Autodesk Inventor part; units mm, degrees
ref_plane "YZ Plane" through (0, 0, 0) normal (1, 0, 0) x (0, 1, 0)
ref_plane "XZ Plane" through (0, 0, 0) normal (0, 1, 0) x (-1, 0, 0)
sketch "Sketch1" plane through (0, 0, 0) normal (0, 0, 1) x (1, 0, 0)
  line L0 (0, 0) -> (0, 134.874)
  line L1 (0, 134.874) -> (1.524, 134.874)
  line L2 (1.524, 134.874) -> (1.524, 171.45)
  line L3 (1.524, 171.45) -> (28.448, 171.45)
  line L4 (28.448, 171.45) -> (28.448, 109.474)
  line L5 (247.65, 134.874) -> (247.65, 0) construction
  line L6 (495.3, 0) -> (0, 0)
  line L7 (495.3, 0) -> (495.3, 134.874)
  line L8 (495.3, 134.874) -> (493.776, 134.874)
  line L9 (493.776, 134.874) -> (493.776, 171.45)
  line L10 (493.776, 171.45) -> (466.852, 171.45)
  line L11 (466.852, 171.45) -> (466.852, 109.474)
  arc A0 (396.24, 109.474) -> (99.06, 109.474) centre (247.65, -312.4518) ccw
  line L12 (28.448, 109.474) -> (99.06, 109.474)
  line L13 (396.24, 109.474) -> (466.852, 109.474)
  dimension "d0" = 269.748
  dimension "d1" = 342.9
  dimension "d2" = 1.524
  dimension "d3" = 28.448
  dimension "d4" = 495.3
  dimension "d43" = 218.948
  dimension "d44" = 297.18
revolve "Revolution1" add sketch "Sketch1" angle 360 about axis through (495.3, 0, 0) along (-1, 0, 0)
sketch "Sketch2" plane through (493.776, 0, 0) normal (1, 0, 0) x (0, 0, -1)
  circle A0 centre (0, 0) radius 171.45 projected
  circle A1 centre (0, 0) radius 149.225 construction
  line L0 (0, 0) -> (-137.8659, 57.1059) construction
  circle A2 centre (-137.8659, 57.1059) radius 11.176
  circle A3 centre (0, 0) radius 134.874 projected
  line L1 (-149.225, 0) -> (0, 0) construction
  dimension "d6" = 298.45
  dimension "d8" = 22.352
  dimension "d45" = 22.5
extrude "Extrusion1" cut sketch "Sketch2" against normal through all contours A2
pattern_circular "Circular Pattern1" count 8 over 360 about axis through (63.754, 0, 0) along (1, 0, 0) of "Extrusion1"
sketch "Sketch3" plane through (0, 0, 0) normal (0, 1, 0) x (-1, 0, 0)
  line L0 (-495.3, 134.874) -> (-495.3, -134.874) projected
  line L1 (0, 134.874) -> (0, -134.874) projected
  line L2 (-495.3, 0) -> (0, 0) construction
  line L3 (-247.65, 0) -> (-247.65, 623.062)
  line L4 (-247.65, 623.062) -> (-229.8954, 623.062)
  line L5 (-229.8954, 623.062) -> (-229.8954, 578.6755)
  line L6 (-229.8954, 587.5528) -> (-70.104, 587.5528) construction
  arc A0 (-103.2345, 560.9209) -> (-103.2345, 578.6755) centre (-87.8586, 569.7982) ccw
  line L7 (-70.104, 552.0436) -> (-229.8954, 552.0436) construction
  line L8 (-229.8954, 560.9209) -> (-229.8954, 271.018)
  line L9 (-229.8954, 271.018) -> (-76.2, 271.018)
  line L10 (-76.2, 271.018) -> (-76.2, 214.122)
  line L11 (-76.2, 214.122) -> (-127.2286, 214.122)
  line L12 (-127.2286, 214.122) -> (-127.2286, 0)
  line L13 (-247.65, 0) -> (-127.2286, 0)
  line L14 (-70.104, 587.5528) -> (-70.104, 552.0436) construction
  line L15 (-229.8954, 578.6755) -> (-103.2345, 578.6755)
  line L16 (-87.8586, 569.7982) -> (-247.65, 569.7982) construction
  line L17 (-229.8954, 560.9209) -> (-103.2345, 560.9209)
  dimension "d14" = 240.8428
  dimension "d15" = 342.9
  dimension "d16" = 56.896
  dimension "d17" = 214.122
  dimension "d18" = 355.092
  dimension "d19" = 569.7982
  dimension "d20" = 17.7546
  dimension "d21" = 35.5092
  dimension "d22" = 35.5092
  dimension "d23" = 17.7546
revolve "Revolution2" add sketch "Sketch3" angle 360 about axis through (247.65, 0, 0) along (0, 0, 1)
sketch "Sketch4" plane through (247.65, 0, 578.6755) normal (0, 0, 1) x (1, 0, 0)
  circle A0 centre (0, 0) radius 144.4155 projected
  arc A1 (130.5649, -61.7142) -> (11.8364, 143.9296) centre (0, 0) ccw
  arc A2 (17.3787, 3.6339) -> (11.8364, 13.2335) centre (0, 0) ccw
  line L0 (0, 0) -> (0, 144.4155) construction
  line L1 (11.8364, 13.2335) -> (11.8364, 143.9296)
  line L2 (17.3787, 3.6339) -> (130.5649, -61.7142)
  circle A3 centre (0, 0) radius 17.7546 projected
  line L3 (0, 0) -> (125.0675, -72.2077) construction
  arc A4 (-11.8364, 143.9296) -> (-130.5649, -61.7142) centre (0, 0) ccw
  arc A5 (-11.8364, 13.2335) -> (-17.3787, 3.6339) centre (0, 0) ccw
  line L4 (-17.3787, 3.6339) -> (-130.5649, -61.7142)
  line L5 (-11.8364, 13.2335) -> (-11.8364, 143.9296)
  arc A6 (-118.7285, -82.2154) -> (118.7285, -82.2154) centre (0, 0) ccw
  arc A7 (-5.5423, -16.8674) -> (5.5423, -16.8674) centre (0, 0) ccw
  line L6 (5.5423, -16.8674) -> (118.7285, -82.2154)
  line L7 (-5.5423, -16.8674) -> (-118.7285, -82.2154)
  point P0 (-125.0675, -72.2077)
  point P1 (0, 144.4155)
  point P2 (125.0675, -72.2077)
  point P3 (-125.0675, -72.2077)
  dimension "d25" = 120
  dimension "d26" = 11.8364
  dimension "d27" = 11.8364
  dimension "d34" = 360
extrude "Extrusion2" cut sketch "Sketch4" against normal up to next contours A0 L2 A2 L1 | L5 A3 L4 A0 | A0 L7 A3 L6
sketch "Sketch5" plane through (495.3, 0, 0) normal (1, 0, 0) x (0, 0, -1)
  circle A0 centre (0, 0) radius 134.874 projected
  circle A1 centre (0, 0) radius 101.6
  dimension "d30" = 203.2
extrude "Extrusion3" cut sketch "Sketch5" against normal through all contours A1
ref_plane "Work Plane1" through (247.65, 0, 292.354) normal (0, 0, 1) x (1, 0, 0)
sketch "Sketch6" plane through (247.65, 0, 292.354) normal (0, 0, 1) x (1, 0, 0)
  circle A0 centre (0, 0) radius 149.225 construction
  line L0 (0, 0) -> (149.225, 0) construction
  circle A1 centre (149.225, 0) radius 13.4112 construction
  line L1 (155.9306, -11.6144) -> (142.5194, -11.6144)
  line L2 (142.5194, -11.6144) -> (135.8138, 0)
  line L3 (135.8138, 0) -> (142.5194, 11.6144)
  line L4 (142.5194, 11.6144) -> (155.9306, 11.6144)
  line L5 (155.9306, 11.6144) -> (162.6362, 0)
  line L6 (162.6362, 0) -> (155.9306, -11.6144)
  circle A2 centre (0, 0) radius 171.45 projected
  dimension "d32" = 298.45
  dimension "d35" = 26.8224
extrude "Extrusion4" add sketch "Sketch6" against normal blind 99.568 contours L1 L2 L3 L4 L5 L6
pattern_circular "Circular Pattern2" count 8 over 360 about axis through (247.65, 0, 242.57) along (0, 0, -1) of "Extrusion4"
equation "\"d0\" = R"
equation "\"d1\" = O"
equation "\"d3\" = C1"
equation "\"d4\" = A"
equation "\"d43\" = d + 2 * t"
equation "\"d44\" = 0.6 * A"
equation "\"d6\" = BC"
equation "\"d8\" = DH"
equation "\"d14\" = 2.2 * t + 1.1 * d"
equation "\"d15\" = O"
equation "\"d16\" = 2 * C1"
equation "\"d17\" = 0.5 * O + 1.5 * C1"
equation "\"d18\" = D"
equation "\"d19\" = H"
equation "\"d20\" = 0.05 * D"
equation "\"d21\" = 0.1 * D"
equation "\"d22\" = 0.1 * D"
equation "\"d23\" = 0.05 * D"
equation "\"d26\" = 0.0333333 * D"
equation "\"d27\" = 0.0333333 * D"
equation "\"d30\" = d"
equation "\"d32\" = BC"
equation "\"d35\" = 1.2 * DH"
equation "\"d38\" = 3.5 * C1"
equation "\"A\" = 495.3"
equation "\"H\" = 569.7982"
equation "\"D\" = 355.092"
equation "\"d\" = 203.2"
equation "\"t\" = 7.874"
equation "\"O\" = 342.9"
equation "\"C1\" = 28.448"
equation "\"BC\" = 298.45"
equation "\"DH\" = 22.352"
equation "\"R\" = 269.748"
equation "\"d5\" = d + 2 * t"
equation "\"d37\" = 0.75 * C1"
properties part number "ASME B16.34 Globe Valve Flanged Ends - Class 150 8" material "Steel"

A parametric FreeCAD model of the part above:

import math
import FreeCAD as App
import Part
import Sketcher

V = App.Vector
Q = App.Units.Quantity


def add_polygon(sketch, points):
    """Adds a closed chain of lines whose ends are joined by coincident constraints."""
    first, n = sketch.GeometryCount, len(points)
    for a, b in zip(points, points[1:] + points[:1]):
        sketch.addGeometry(Part.LineSegment(App.Vector(*a, 0), App.Vector(*b, 0)), False)
    for i in range(n):
        sketch.addConstraint(Sketcher.Constraint("Coincident", first + i, 2, first + (i + 1) % n, 1))

doc = App.newDocument("Part")
params = doc.addObject("Spreadsheet::Sheet", "Params")
for row, (alias, value) in enumerate([
    ("sketch1_width", "19.5 in"),
    ("sketch1_width2", "0.06 in"),
    ("sketch1_height", "5.31 in"),
    ("sketch1_height2", "1.44 in"),
    ("revolution_angle", "360 deg"),
    ("sketch2_diameter", "0.88 in"),
    ("sketch3_radius", "0.699 in"),
    ("sketch3_height", "8.43 in"),
    ("sketch3_height2", "2.24 in"),
    ("sketch3_width", "0.699 in"),
    ("sketch3_height3", "24.53 in"),
    ("revolution2_angle", "360 deg"),
    ("sketch4_radius", "0.699 in"),
    ("sketch4_width", "0.466 in"),
    ("pocket2_length", "0.699 in"),
    ("sketch5_diameter", "8 in"),
    ("sketch6_width", "0.528 in"),
    ("pad1_length", "3.92 in"),
], start=1):
    params.set(f"A{row}", alias)
    params.set(f"B{row}", "=" + value)
    params.setAlias(f"B{row}", alias)

body = doc.addObject("PartDesign::Body", "Body")

sketch1 = body.newObject("Sketcher::SketchObject", "Sketch")
sketch1.AttachmentSupport = (doc.getObject("XY_Plane"), [""])
sketch1.MapMode = "FlatFace"
sketch1.addGeometry(Part.LineSegment(V(0, 134.874, 0), V(0, 0, 0)), False)
sketch1.addGeometry(Part.LineSegment(V(0, 0, 0), V(495.3, 0, 0)), False)
sketch1.addGeometry(Part.LineSegment(V(495.3, 0, 0), V(495.3, 134.874, 0)), False)
sketch1.addGeometry(Part.LineSegment(V(495.3, 134.874, 0), V(493.776, 134.874, 0)), False)
sketch1.addGeometry(Part.LineSegment(V(493.776, 134.874, 0), V(493.776, 171.45, 0)), False)
sketch1.addGeometry(Part.LineSegment(V(493.776, 171.45, 0), V(466.852, 171.45, 0)), False)
sketch1.addGeometry(Part.LineSegment(V(466.852, 171.45, 0), V(466.852, 109.474, 0)), False)
sketch1.addGeometry(Part.LineSegment(V(466.852, 109.474, 0), V(396.24, 109.474, 0)), False)
sketch1.addGeometry(Part.ArcOfCircle(Part.Circle(V(247.65, -312.4518, 0), V(0, 0, 1), 447.325797), math.radians(70.599218), math.radians(109.400782)), False)
sketch1.addGeometry(Part.LineSegment(V(99.06, 109.474, 0), V(28.448, 109.474, 0)), False)
sketch1.addGeometry(Part.LineSegment(V(28.448, 109.474, 0), V(28.448, 171.45, 0)), False)
sketch1.addGeometry(Part.LineSegment(V(28.448, 171.45, 0), V(1.524, 171.45, 0)), False)
sketch1.addGeometry(Part.LineSegment(V(1.524, 171.45, 0), V(1.524, 134.874, 0)), False)
sketch1.addGeometry(Part.LineSegment(V(1.524, 134.874, 0), V(0, 134.874, 0)), False)
sketch1.addConstraint(Sketcher.Constraint("Coincident", 0, 2, 1, 1))
sketch1.addConstraint(Sketcher.Constraint("Coincident", 1, 2, 2, 1))
sketch1.addConstraint(Sketcher.Constraint("Coincident", 2, 2, 3, 1))
sketch1.addConstraint(Sketcher.Constraint("Coincident", 3, 2, 4, 1))
sketch1.addConstraint(Sketcher.Constraint("Coincident", 4, 2, 5, 1))
sketch1.addConstraint(Sketcher.Constraint("Coincident", 5, 2, 6, 1))
sketch1.addConstraint(Sketcher.Constraint("Coincident", 6, 2, 7, 1))
sketch1.addConstraint(Sketcher.Constraint("Coincident", 7, 2, 8, 1))
sketch1.addConstraint(Sketcher.Constraint("Coincident", 8, 2, 9, 1))
sketch1.addConstraint(Sketcher.Constraint("Coincident", 9, 2, 10, 1))
sketch1.addConstraint(Sketcher.Constraint("Coincident", 10, 2, 11, 1))
sketch1.addConstraint(Sketcher.Constraint("Coincident", 11, 2, 12, 1))
sketch1.addConstraint(Sketcher.Constraint("Coincident", 12, 2, 13, 1))
sketch1.addConstraint(Sketcher.Constraint("Coincident", 13, 2, 0, 1))
sketch1.addConstraint(Sketcher.Constraint("Vertical", 0))
sketch1.addConstraint(Sketcher.Constraint("Horizontal", 1))
sketch1.addConstraint(Sketcher.Constraint("Vertical", 2))
sketch1.addConstraint(Sketcher.Constraint("Horizontal", 3))
sketch1.addConstraint(Sketcher.Constraint("Vertical", 4))
sketch1.addConstraint(Sketcher.Constraint("Horizontal", 5))
sketch1.addConstraint(Sketcher.Constraint("Vertical", 6))
sketch1.addConstraint(Sketcher.Constraint("Horizontal", 7))
sketch1.addConstraint(Sketcher.Constraint("Horizontal", 9))
sketch1.addConstraint(Sketcher.Constraint("Vertical", 10))
sketch1.addConstraint(Sketcher.Constraint("Horizontal", 11))
sketch1.addConstraint(Sketcher.Constraint("Vertical", 12))
sketch1.addConstraint(Sketcher.Constraint("Horizontal", 13))
sketch1.addConstraint(Sketcher.Constraint("Coincident", 0, 2, -1, 1))
sketch1.addConstraint(Sketcher.Constraint("Horizontal", 7, 2, 8, 2))
sketch1.addConstraint(Sketcher.Constraint("Horizontal", 5, 2, 10, 2))
sketch1.addConstraint(Sketcher.Constraint("Horizontal", 3, 2, 12, 2))
sketch1.addConstraint(Sketcher.Constraint("Equal", 7, 9))
sketch1.addConstraint(Sketcher.Constraint("Equal", 5, 11))
sketch1.addConstraint(Sketcher.Constraint("Equal", 3, 13))
sketch1.addConstraint(Sketcher.Constraint("DistanceX", 1, 1, 1, 2, Q("19.5 in")))
sketch1.addConstraint(Sketcher.Constraint("DistanceX", 3, 2, 3, 1, Q("0.06 in")))
sketch1.addConstraint(Sketcher.Constraint("DistanceX", 8, 2, 7, 2, Q("11.7 in")))
sketch1.addConstraint(Sketcher.Constraint("DistanceX", -1, 1, 9, 2, Q("1.12 in")))
sketch1.addConstraint(Sketcher.Constraint("DistanceY", 6, 2, 3, 2, Q("1 in")))
sketch1.addConstraint(Sketcher.Constraint("DistanceY", 0, 2, 0, 1, Q("5.31 in")))
sketch1.addConstraint(Sketcher.Constraint("DistanceY", 4, 1, 4, 2, Q("1.44 in")))
sketch1.addConstraint(Sketcher.Constraint("Radius", 8, 447.3258))
sketch1.setExpression("Constraints[34]", "Params.sketch1_width")
sketch1.setExpression("Constraints[35]", "Params.sketch1_width2")
sketch1.setExpression("Constraints[39]", "Params.sketch1_height")
sketch1.setExpression("Constraints[40]", "Params.sketch1_height2")
revolution = body.newObject("PartDesign::Revolution", "Revolution")
revolution.Profile = sketch1
revolution.ReferenceAxis = (sketch1, ["H_Axis"])
revolution.setExpression("Angle", "Params.revolution_angle")

sketch2 = body.newObject("Sketcher::SketchObject", "Sketch001")
sketch2.AttachmentSupport = (doc.getObject("YZ_Plane"), [""])
sketch2.MapMode = "FlatFace"
sketch2.AttachmentOffset = App.Placement(V(0, 0, 19.44 * 25.4), App.Rotation())
sketch2.addGeometry(Part.Circle(V(57.1059, 137.8659, 0), V(0, 0, 1), 11.176), False)
sketch2.addConstraint(Sketcher.Constraint("Diameter", 0, Q("0.88 in")))
sketch2.addConstraint(Sketcher.Constraint("DistanceY", -1, 1, 0, 3, Q("5.4278 in")))
sketch2.addConstraint(Sketcher.Constraint("DistanceX", -1, 1, 0, 3, 57.106))
sketch2.setExpression("Constraints[0]", "Params.sketch2_diameter")
pocket1 = body.newObject("PartDesign::Pocket", "Pocket")
pocket1.Profile = sketch2
pocket1.Type = "ThroughAll"
doc.recompute()

polarpattern = body.newObject("PartDesign::PolarPattern", "PolarPattern")
polarpattern.Originals = [pocket1]
polarpattern.Axis = (doc.getObject("X_Axis"), [""])
polarpattern.Angle = 360
polarpattern.Occurrences = 8
body.Tip = polarpattern

sketch3 = body.newObject("Sketcher::SketchObject", "Sketch002")
sketch3.AttachmentSupport = (doc.getObject("XZ_Plane"), [""])
sketch3.MapMode = "FlatFace"
sketch3.addGeometry(Part.LineSegment(V(247.65, 623.062, 0), V(247.65, 0, 0)), False)
sketch3.addGeometry(Part.LineSegment(V(247.65, 0, 0), V(127.2286, 0, 0)), False)
sketch3.addGeometry(Part.LineSegment(V(127.2286, 0, 0), V(127.2286, 214.122, 0)), False)
sketch3.addGeometry(Part.LineSegment(V(127.2286, 214.122, 0), V(76.2, 214.122, 0)), False)
sketch3.addGeometry(Part.LineSegment(V(76.2, 214.122, 0), V(76.2, 271.018, 0)), False)
sketch3.addGeometry(Part.LineSegment(V(76.2, 271.018, 0), V(229.8954, 271.018, 0)), False)
sketch3.addGeometry(Part.LineSegment(V(229.8954, 271.018, 0), V(229.8954, 560.9209, 0)), False)
sketch3.addGeometry(Part.LineSegment(V(229.8954, 560.9209, 0), V(103.2345, 560.9209, 0)), False)
sketch3.addGeometry(Part.ArcOfCircle(Part.Circle(V(87.8586, 569.7982, 0), V(0, 0, 1), 17.75457), math.radians(30.000056), math.radians(329.999944)), False)
sketch3.addGeometry(Part.LineSegment(V(103.2345, 578.6755, 0), V(229.8954, 578.6755, 0)), False)
sketch3.addGeometry(Part.LineSegment(V(229.8954, 578.6755, 0), V(229.8954, 623.062, 0)), False)
sketch3.addGeometry(Part.LineSegment(V(229.8954, 623.062, 0), V(247.65, 623.062, 0)), False)
sketch3.addGeometry(Part.LineSegment(V(247.65, 0, 0), V(247.65, 623.062, 0)), True)
sketch3.addConstraint(Sketcher.Constraint("Coincident", 0, 2, 1, 1))
sketch3.addConstraint(Sketcher.Constraint("Coincident", 1, 2, 2, 1))
sketch3.addConstraint(Sketcher.Constraint("Coincident", 2, 2, 3, 1))
sketch3.addConstraint(Sketcher.Constraint("Coincident", 3, 2, 4, 1))
sketch3.addConstraint(Sketcher.Constraint("Coincident", 4, 2, 5, 1))
sketch3.addConstraint(Sketcher.Constraint("Coincident", 5, 2, 6, 1))
sketch3.addConstraint(Sketcher.Constraint("Coincident", 6, 2, 7, 1))
sketch3.addConstraint(Sketcher.Constraint("Coincident", 7, 2, 8, 2))
sketch3.addConstraint(Sketcher.Constraint("Coincident", 8, 1, 9, 1))
sketch3.addConstraint(Sketcher.Constraint("Coincident", 9, 2, 10, 1))
sketch3.addConstraint(Sketcher.Constraint("Coincident", 10, 2, 11, 1))
sketch3.addConstraint(Sketcher.Constraint("Coincident", 11, 2, 0, 1))
sketch3.addConstraint(Sketcher.Constraint("Vertical", 0))
sketch3.addConstraint(Sketcher.Constraint("Horizontal", 1))
sketch3.addConstraint(Sketcher.Constraint("Vertical", 2))
sketch3.addConstraint(Sketcher.Constraint("Horizontal", 3))
sketch3.addConstraint(Sketcher.Constraint("Vertical", 4))
sketch3.addConstraint(Sketcher.Constraint("Horizontal", 5))
sketch3.addConstraint(Sketcher.Constraint("Vertical", 6))
sketch3.addConstraint(Sketcher.Constraint("Horizontal", 7))
sketch3.addConstraint(Sketcher.Constraint("Horizontal", 9))
sketch3.addConstraint(Sketcher.Constraint("Vertical", 10))
sketch3.addConstraint(Sketcher.Constraint("Horizontal", 11))
sketch3.addConstraint(Sketcher.Constraint("Vertical", 12))
sketch3.addConstraint(Sketcher.Constraint("Coincident", 12, 1, 0, 2))
sketch3.addConstraint(Sketcher.Constraint("PointOnObject", 0, 2, -1))
sketch3.addConstraint(Sketcher.Constraint("Horizontal", 10, 2, 12, 2))
sketch3.addConstraint(Sketcher.Constraint("Vertical", 7, 2, 8, 1))
sketch3.addConstraint(Sketcher.Constraint("Vertical", 6, 2, 9, 2))
sketch3.addConstraint(Sketcher.Constraint("Radius", 8, Q("0.699 in")))
sketch3.addConstraint(Sketcher.Constraint("DistanceY", 2, 1, 2, 2, Q("8.43 in")))
sketch3.addConstraint(Sketcher.Constraint("DistanceY", 4, 1, 4, 2, Q("2.24 in")))
sketch3.addConstraint(Sketcher.Constraint("DistanceX", 11, 1, 11, 2, Q("0.699 in")))
sketch3.addConstraint(Sketcher.Constraint("DistanceY", -1, 1, 8, 3, Q("22.433 in")))
sketch3.addConstraint(Sketcher.Constraint("DistanceX", -1, 1, 3, 2, Q("3 in")))
sketch3.addConstraint(Sketcher.Constraint("DistanceY", 7, 2, 8, 1, Q("0.699 in")))
sketch3.addConstraint(Sketcher.Constraint("DistanceY", 0, 2, 0, 1, Q("24.53 in")))
sketch3.addConstraint(Sketcher.Constraint("DistanceX", 1, 2, 1, 1, Q("4.741 in")))
sketch3.addConstraint(Sketcher.Constraint("DistanceX", 3, 2, 3, 1, Q("2.009 in")))
sketch3.addConstraint(Sketcher.Constraint("DistanceX", 8, 3, 1, 2, Q("1.55 in")))
sketch3.setExpression("Constraints[29]", "Params.sketch3_radius")
sketch3.setExpression("Constraints[30]", "Params.sketch3_height")
sketch3.setExpression("Constraints[31]", "Params.sketch3_height2")
sketch3.setExpression("Constraints[32]", "Params.sketch3_width")
sketch3.setExpression("Constraints[36]", "Params.sketch3_height3")
revolution2 = body.newObject("PartDesign::Revolution", "Revolution001")
revolution2.Profile = sketch3
revolution2.ReferenceAxis = (sketch3, ["Axis0"])
revolution2.setExpression("Angle", "Params.revolution2_angle")

sketch4 = body.newObject("Sketcher::SketchObject", "Sketch003")
sketch4.AttachmentSupport = (doc.getObject("XY_Plane"), [""])
sketch4.MapMode = "FlatFace"
sketch4.AttachmentOffset = App.Placement(V(0, 0, 22.7825 * 25.4), App.Rotation())
sketch4.addGeometry(Part.ArcOfCircle(Part.Circle(V(247.65, 0, 0), V(0, 0, 1), 144.4155), math.radians(-25.298728), math.radians(85.298722)), False)
sketch4.addGeometry(Part.LineSegment(V(259.4864, 143.9296, 0), V(259.4864, 13.2335, 0)), False)
sketch4.addGeometry(Part.ArcOfCircle(Part.Circle(V(247.65, 0, 0), V(0, 0, 1), 17.754613), math.radians(11.810426), math.radians(48.18969)), False)
sketch4.addGeometry(Part.LineSegment(V(265.0287, 3.6339, 0), V(378.2149, -61.7142, 0)), False)
sketch4.addGeometry(Part.LineSegment(V(235.8136, 13.2335, 0), V(235.8136, 143.9296, 0)), False)
sketch4.addGeometry(Part.ArcOfCircle(Part.Circle(V(247.65, 0, 0), V(0, 0, 1), 144.4155), math.radians(94.701278), math.radians(205.298728)), False)
sketch4.addGeometry(Part.LineSegment(V(117.0851, -61.7142, 0), V(230.2713, 3.6339, 0)), False)
sketch4.addGeometry(Part.ArcOfCircle(Part.Circle(V(247.65, 0, 0), V(0, 0, 1), 17.7546), math.radians(131.81031), math.radians(168.189574)), False)
sketch4.addGeometry(Part.ArcOfCircle(Part.Circle(V(247.65, 0, 0), V(0, 0, 1), 144.4155), math.radians(-145.298731), math.radians(-34.701269)), False)
sketch4.addGeometry(Part.LineSegment(V(366.3785, -82.2154, 0), V(253.1923, -16.8674, 0)), False)
sketch4.addGeometry(Part.ArcOfCircle(Part.Circle(V(247.65, 0, 0), V(0, 0, 1), 17.7546), math.radians(-108.189519), math.radians(-71.810481)), False)
sketch4.addGeometry(Part.LineSegment(V(242.1077, -16.8674, 0), V(128.9215, -82.2154, 0)), False)
sketch4.addConstraint(Sketcher.Constraint("Coincident", 0, 2, 1, 1))
sketch4.addConstraint(Sketcher.Constraint("Coincident", 1, 2, 2, 2))
sketch4.addConstraint(Sketcher.Constraint("Coincident", 2, 1, 3, 1))
sketch4.addConstraint(Sketcher.Constraint("Coincident", 3, 2, 0, 1))
sketch4.addConstraint(Sketcher.Constraint("Coincident", 4, 2, 5, 1))
sketch4.addConstraint(Sketcher.Constraint("Coincident", 5, 2, 6, 1))
sketch4.addConstraint(Sketcher.Constraint("Coincident", 6, 2, 7, 2))
sketch4.addConstraint(Sketcher.Constraint("Coincident", 7, 1, 4, 1))
sketch4.addConstraint(Sketcher.Constraint("Coincident", 8, 2, 9, 1))
sketch4.addConstraint(Sketcher.Constraint("Coincident", 9, 2, 10, 2))
sketch4.addConstraint(Sketcher.Constraint("Coincident", 10, 1, 11, 1))
sketch4.addConstraint(Sketcher.Constraint("Coincident", 11, 2, 8, 1))
sketch4.addConstraint(Sketcher.Constraint("Vertical", 1))
sketch4.addConstraint(Sketcher.Constraint("Vertical", 4))
sketch4.addConstraint(Sketcher.Constraint("Coincident", 2, 3, 0, 3))
sketch4.addConstraint(Sketcher.Constraint("Coincident", 5, 3, 0, 3))
sketch4.addConstraint(Sketcher.Constraint("Coincident", 7, 3, 0, 3))
sketch4.addConstraint(Sketcher.Constraint("Coincident", 8, 3, 0, 3))
sketch4.addConstraint(Sketcher.Constraint("Coincident", 10, 3, 0, 3))
sketch4.addConstraint(Sketcher.Constraint("Equal", 0, 5))
sketch4.addConstraint(Sketcher.Constraint("Equal", 2, 7))
sketch4.addConstraint(Sketcher.Constraint("Equal", 5, 8))
sketch4.addConstraint(Sketcher.Constraint("Equal", 7, 10))
sketch4.addConstraint(Sketcher.Constraint("PointOnObject", 0, 3, -1))
sketch4.addConstraint(Sketcher.Constraint("Parallel", 3, 9))
sketch4.addConstraint(Sketcher.Constraint("Parallel", 6, 11))
sketch4.addConstraint(Sketcher.Constraint("Horizontal", 0, 2, 4, 2))
sketch4.addConstraint(Sketcher.Constraint("Horizontal", 3, 2, 5, 2))
sketch4.addConstraint(Sketcher.Constraint("Horizontal", 2, 1, 6, 2))
sketch4.addConstraint(Sketcher.Constraint("Horizontal", 9, 2, 10, 1))
sketch4.addConstraint(Sketcher.Constraint("Equal", 6, 9))
sketch4.addConstraint(Sketcher.Constraint("Angle", 3, Q("-30 deg")))
sketch4.addConstraint(Sketcher.Constraint("Radius", 2, Q("0.699 in")))
sketch4.addConstraint(Sketcher.Constraint("DistanceX", 0, 3, 0, 2, Q("0.466 in")))
sketch4.addConstraint(Sketcher.Constraint("DistanceX", 8, 2, 3, 2, Q("0.466 in")))
sketch4.addConstraint(Sketcher.Constraint("DistanceX", -1, 1, 0, 3, Q("9.75 in")))
sketch4.addConstraint(Sketcher.Constraint("Radius", 0, 144.4155))
sketch4.setExpression("Constraints[32]", "Params.sketch4_radius")
sketch4.setExpression("Constraints[33]", "Params.sketch4_width")
pocket2 = body.newObject("PartDesign::Pocket", "Pocket001")
pocket2.Profile = sketch4
pocket2.setExpression("Length", "Params.pocket2_length")

sketch5 = body.newObject("Sketcher::SketchObject", "Sketch004")
sketch5.AttachmentSupport = (doc.getObject("YZ_Plane"), [""])
sketch5.MapMode = "FlatFace"
sketch5.AttachmentOffset = App.Placement(V(0, 0, 19.5 * 25.4), App.Rotation())
sketch5.addGeometry(Part.Circle(V(0, 0, 0), V(0, 0, 1), 101.6), False)
sketch5.addConstraint(Sketcher.Constraint("Coincident", 0, 3, -1, 1))
sketch5.addConstraint(Sketcher.Constraint("Diameter", 0, Q("8 in")))
sketch5.setExpression("Constraints[1]", "Params.sketch5_diameter")
pocket3 = body.newObject("PartDesign::Pocket", "Pocket002")
pocket3.Profile = sketch5
pocket3.Type = "ThroughAll"

sketch6 = body.newObject("Sketcher::SketchObject", "Sketch005")
sketch6.AttachmentSupport = (doc.getObject("XY_Plane"), [""])
sketch6.MapMode = "FlatFace"
sketch6.AttachmentOffset = App.Placement(V(0, 0, 11.51 * 25.4), App.Rotation())
add_polygon(sketch6, [(390.1694, -11.6144), (403.5806, -11.6144), (410.2862, 0), (403.5806, 11.6144), (390.1694, 11.6144), (383.4638, 0)])
sketch6.addConstraint(Sketcher.Constraint("Horizontal", 0))
sketch6.addConstraint(Sketcher.Constraint("Horizontal", 3))
sketch6.addConstraint(Sketcher.Constraint("Symmetric", 0, 2, 2, 2, -1))
sketch6.addConstraint(Sketcher.Constraint("PointOnObject", 1, 2, -1))
sketch6.addConstraint(Sketcher.Constraint("PointOnObject", 4, 2, -1))
sketch6.addConstraint(Sketcher.Constraint("Parallel", 1, 4))
sketch6.addConstraint(Sketcher.Constraint("Parallel", 2, 5))
sketch6.addConstraint(Sketcher.Constraint("Angle", 1, Q("60 deg")))
sketch6.addConstraint(Sketcher.Constraint("DistanceX", 4, 2, 1, 2, Q("1.056 in")))
sketch6.addConstraint(Sketcher.Constraint("DistanceX", 0, 1, 0, 2, Q("0.528 in")))
sketch6.addConstraint(Sketcher.Constraint("DistanceX", -1, 1, 0, 2, Q("15.889 in")))
sketch6.setExpression("Constraints[15]", "Params.sketch6_width")
pad1 = body.newObject("PartDesign::Pad", "Pad")
pad1.Profile = sketch6
pad1.setExpression("Length", "Params.pad1_length")
pad1.Reversed = True
doc.recompute()

datumline = body.newObject("PartDesign::Line", "DatumLine")
datumline.Placement = App.Placement(V(247.65, 0, 0), App.Rotation(V(0, 0, 1), V(0, 0, 1)))
polarpattern2 = body.newObject("PartDesign::PolarPattern", "PolarPattern001")
polarpattern2.Originals = [pad1]
polarpattern2.Axis = (datumline, [""])
polarpattern2.Angle = 360
polarpattern2.Occurrences = 8
body.Tip = polarpattern2

doc.recompute()
